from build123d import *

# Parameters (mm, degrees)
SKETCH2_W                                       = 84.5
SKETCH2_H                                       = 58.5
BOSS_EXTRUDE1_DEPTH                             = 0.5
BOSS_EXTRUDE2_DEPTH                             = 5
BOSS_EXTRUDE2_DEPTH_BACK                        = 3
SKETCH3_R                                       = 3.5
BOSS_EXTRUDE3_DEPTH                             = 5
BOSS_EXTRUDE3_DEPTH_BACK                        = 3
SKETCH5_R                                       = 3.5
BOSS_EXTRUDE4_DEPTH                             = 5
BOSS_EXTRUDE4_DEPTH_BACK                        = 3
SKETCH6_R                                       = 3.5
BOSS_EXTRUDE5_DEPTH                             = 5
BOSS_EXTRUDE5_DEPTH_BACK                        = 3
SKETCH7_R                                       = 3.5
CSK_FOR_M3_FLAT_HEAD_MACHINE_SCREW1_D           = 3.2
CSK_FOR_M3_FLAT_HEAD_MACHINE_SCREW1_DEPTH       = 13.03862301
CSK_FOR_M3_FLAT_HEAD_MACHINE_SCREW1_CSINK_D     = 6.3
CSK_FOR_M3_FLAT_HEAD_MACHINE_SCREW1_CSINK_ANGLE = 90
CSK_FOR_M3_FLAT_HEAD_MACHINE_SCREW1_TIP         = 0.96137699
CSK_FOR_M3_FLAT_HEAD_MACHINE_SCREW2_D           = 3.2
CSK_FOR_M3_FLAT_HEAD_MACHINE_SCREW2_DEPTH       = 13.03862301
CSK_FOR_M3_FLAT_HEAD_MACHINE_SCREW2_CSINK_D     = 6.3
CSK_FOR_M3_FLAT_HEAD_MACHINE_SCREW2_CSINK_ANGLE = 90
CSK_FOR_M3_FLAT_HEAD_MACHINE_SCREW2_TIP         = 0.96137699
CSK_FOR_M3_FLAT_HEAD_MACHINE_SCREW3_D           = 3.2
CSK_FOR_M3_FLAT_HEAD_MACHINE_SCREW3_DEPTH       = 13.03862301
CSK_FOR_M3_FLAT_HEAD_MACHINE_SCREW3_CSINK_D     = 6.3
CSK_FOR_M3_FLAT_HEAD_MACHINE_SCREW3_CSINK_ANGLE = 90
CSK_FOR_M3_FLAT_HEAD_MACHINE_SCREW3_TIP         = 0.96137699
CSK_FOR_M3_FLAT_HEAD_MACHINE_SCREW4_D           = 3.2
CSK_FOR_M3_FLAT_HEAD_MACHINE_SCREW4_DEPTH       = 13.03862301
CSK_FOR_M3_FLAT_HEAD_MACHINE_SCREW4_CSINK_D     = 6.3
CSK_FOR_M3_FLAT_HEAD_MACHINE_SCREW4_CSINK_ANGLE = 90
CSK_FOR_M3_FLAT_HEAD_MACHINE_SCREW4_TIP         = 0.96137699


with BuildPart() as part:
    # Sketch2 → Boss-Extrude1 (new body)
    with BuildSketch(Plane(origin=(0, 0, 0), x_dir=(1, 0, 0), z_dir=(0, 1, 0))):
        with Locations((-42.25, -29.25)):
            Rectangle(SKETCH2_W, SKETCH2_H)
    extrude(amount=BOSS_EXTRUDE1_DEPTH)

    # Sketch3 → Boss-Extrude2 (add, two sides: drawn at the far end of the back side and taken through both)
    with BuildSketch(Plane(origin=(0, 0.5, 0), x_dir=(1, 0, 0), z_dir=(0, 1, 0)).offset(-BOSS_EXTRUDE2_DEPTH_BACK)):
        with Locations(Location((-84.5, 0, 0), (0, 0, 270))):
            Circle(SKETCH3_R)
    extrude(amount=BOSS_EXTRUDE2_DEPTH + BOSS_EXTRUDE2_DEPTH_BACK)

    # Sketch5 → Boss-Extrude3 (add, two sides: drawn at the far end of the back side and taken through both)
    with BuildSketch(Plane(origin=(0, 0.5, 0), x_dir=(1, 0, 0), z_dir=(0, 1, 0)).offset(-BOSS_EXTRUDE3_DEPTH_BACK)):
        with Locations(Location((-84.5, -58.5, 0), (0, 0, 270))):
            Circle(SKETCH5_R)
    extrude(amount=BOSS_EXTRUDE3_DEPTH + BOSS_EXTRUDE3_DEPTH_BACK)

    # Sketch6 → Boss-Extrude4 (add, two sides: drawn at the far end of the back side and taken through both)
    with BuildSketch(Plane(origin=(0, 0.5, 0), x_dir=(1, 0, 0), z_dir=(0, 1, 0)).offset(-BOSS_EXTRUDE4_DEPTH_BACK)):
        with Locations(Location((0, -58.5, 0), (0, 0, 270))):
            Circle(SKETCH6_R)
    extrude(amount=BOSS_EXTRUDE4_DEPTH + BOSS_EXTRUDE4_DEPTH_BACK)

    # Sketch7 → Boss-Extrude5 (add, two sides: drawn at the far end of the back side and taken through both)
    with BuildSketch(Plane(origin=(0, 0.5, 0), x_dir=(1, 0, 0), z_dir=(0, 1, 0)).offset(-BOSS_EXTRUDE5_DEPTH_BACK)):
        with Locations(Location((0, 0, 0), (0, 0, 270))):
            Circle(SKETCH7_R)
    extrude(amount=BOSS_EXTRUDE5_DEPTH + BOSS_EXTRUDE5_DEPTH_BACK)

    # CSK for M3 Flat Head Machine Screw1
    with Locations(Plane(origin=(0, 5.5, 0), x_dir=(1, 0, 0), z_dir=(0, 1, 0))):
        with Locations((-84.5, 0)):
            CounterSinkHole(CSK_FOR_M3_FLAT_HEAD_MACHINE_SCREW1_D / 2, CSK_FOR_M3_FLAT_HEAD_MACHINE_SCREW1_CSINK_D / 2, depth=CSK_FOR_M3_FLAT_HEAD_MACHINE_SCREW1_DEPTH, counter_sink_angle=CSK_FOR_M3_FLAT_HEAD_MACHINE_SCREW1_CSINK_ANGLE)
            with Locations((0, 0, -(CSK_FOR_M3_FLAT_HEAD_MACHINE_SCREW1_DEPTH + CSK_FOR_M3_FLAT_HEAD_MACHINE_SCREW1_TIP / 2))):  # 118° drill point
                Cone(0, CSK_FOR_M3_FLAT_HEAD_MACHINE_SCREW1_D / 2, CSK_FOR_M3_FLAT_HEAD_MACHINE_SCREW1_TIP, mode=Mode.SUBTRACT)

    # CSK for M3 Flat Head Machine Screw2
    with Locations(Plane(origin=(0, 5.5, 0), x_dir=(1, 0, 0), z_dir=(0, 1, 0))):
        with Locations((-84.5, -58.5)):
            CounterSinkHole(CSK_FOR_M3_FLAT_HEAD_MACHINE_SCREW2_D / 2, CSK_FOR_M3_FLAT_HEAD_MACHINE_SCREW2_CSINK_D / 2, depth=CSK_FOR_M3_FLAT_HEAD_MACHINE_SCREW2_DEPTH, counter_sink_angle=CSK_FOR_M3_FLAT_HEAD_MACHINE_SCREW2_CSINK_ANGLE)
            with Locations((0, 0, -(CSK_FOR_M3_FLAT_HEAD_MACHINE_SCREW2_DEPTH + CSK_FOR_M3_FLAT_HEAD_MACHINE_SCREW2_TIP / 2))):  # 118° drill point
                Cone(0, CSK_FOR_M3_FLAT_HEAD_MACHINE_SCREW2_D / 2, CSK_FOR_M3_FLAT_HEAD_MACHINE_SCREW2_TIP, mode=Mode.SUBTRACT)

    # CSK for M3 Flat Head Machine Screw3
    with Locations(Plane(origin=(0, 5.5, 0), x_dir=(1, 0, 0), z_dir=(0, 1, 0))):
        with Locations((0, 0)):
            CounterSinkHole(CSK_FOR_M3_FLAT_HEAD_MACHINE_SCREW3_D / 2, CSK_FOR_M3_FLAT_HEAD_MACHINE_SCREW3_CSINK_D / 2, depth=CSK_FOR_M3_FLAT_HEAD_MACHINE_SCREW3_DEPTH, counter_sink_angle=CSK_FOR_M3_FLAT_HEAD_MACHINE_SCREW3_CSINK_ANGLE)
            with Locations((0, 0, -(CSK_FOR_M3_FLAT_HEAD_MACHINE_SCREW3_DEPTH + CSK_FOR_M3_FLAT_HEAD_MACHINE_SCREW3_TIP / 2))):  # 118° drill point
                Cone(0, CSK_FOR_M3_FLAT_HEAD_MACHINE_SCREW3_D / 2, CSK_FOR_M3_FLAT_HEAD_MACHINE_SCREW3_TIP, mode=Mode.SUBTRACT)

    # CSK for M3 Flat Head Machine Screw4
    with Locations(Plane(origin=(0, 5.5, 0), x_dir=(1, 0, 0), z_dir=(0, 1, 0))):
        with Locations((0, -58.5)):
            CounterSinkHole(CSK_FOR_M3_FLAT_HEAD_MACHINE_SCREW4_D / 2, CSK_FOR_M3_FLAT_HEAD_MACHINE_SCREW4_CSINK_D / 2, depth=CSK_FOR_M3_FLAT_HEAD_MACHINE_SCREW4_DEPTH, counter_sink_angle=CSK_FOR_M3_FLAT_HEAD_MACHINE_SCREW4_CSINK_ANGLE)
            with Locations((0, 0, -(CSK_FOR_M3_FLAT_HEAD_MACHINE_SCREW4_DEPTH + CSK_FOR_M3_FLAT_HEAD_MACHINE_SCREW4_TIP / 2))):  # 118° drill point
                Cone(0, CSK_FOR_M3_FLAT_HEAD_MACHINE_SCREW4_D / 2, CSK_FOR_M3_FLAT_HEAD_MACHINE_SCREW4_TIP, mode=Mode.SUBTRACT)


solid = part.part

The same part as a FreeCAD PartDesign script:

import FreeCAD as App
import Part
import Sketcher

V = App.Vector
Q = App.Units.Quantity


def add_polygon(sketch, points):
    """Adds a closed chain of lines whose ends are joined by coincident constraints."""
    first, n = sketch.GeometryCount, len(points)
    for a, b in zip(points, points[1:] + points[:1]):
        sketch.addGeometry(Part.LineSegment(App.Vector(*a, 0), App.Vector(*b, 0)), False)
    for i in range(n):
        sketch.addConstraint(Sketcher.Constraint("Coincident", first + i, 2, first + (i + 1) % n, 1))

doc = App.newDocument("Part")
body = doc.addObject("PartDesign::Body", "Body")

sketch1 = doc.addObject("Sketcher::SketchObject", "Sketch")
body.addObject(sketch1)
sketch1.AttachmentSupport = (doc.XZ_Plane, [""])
sketch1.MapMode = "FlatFace"
add_polygon(sketch1, [(-84, 0), (-84, 58), (0, 58), (0, 0)])
sketch1.addConstraint(Sketcher.Constraint("Vertical", 0))
sketch1.addConstraint(Sketcher.Constraint("Horizontal", 1))
sketch1.addConstraint(Sketcher.Constraint("Vertical", 2))
sketch1.addConstraint(Sketcher.Constraint("Horizontal", 3))
sketch1.addConstraint(Sketcher.Constraint("Coincident", 2, 2, -1, 1))
sketch1.addConstraint(Sketcher.Constraint("DistanceX", 1, 1, 1, 2, Q("84.5 mm")))
sketch1.addConstraint(Sketcher.Constraint("DistanceY", 0, 1, 0, 2, Q("58.5 mm")))
pad1 = doc.addObject("PartDesign::Pad", "Pad")
body.addObject(pad1)
pad1.Profile = sketch1
pad1.Length = 0.5
pad1.Reversed = True

sketch2 = doc.addObject("Sketcher::SketchObject", "Sketch001")
body.addObject(sketch2)
sketch2.AttachmentSupport = (doc.XZ_Plane, [""])
sketch2.MapMode = "FlatFace"
sketch2.AttachmentOffset = App.Placement(V(0, 0, -0.5), App.Rotation())
sketch2.addGeometry(Part.Circle(V(-84.5, 0, 0), V(0, 0, 1), 3.5), False)
sketch2.addConstraint(Sketcher.Constraint("PointOnObject", 0, 3, -1))
sketch2.addConstraint(Sketcher.Constraint("Diameter", 0, Q("7 mm")))
sketch2.addConstraint(Sketcher.Constraint("DistanceX", 0, 3, -1, 1, Q("84.5 mm")))
pad2 = doc.addObject("PartDesign::Pad", "Pad001")
body.addObject(pad2)
pad2.Profile = sketch2
pad2.Type = "TwoLengths"
pad2.Length = 5
pad2.Length2 = 3
pad2.Reversed = True

sketch3 = doc.addObject("Sketcher::SketchObject", "Sketch002")
body.addObject(sketch3)
sketch3.AttachmentSupport = (doc.XZ_Plane, [""])
sketch3.MapMode = "FlatFace"
sketch3.AttachmentOffset = App.Placement(V(0, 0, -0.5), App.Rotation())
sketch3.addGeometry(Part.Circle(V(-84.5, 58.5, 0), V(0, 0, 1), 3.5), False)
sketch3.addConstraint(Sketcher.Constraint("Diameter", 0, Q("7 mm")))
sketch3.addConstraint(Sketcher.Constraint("DistanceX", 0, 3, -1, 1, Q("84.5 mm")))
sketch3.addConstraint(Sketcher.Constraint("DistanceY", -1, 1, 0, 3, Q("58.5 mm")))
pad3 = doc.addObject("PartDesign::Pad", "Pad002")
body.addObject(pad3)
pad3.Profile = sketch3
pad3.Type = "TwoLengths"
pad3.Length = 5
pad3.Length2 = 3
pad3.Reversed = True

sketch4 = doc.addObject("Sketcher::SketchObject", "Sketch003")
body.addObject(sketch4)
sketch4.AttachmentSupport = (doc.XZ_Plane, [""])
sketch4.MapMode = "FlatFace"
sketch4.AttachmentOffset = App.Placement(V(0, 0, -0.5), App.Rotation())
sketch4.addGeometry(Part.Circle(V(0, 58.5, 0), V(0, 0, 1), 3.5), False)
sketch4.addConstraint(Sketcher.Constraint("PointOnObject", 0, 3, -2))
sketch4.addConstraint(Sketcher.Constraint("Diameter", 0, Q("7 mm")))
sketch4.addConstraint(Sketcher.Constraint("DistanceY", -1, 1, 0, 3, Q("58.5 mm")))
pad4 = doc.addObject("PartDesign::Pad", "Pad003")
body.addObject(pad4)
pad4.Profile = sketch4
pad4.Type = "TwoLengths"
pad4.Length = 5
pad4.Length2 = 3
pad4.Reversed = True

sketch5 = doc.addObject("Sketcher::SketchObject", "Sketch004")
body.addObject(sketch5)
sketch5.AttachmentSupport = (doc.XZ_Plane, [""])
sketch5.MapMode = "FlatFace"
sketch5.AttachmentOffset = App.Placement(V(0, 0, -0.5), App.Rotation())
sketch5.addGeometry(Part.Circle(V(0, 0, 0), V(0, 0, 1), 3.5), False)
sketch5.addConstraint(Sketcher.Constraint("Coincident", 0, 3, -1, 1))
sketch5.addConstraint(Sketcher.Constraint("Diameter", 0, Q("7 mm")))
pad5 = doc.addObject("PartDesign::Pad", "Pad004")
body.addObject(pad5)
pad5.Profile = sketch5
pad5.Type = "TwoLengths"
pad5.Length = 5
pad5.Length2 = 3
pad5.Reversed = True

sketch6 = doc.addObject("Sketcher::SketchObject", "Sketch005")
body.addObject(sketch6)
sketch6.AttachmentSupport = (doc.XZ_Plane, [""])
sketch6.MapMode = "FlatFace"
sketch6.AttachmentOffset = App.Placement(V(0, 0, -5.5), App.Rotation())
sketch6.addGeometry(Part.Circle(V(-84.5, 0, 0), V(0, 0, 1), 1.6), False)
sketch6.addConstraint(Sketcher.Constraint("PointOnObject", 0, 3, -1))
sketch6.addConstraint(Sketcher.Constraint("Diameter", 0, Q("3.2 mm")))
sketch6.addConstraint(Sketcher.Constraint("DistanceX", 0, 3, -1, 1, Q("84.5 mm")))
doc.recompute()
hole = doc.addObject("PartDesign::Hole", "Hole")
body.addObject(hole)
hole.Profile = sketch6
hole.ThreadType = "None"
hole.Diameter = 3.2
hole.DepthType = "Dimension"
hole.Depth = 13.038623
hole.DrillPoint = "Angled"
hole.DrillPointAngle = 118
hole.HoleCutType = "Countersink"
hole.HoleCutDiameter = 6.3
hole.HoleCutCountersinkAngle = 90
hole.Reversed = True

sketch7 = doc.addObject("Sketcher::SketchObject", "Sketch006")
body.addObject(sketch7)
sketch7.AttachmentSupport = (doc.XZ_Plane, [""])
sketch7.MapMode = "FlatFace"
sketch7.AttachmentOffset = App.Placement(V(0, 0, -5.5), App.Rotation())
sketch7.addGeometry(Part.Circle(V(-84.5, 58.5, 0), V(0, 0, 1), 1.6), False)
sketch7.addConstraint(Sketcher.Constraint("Diameter", 0, Q("3.2 mm")))
sketch7.addConstraint(Sketcher.Constraint("DistanceX", 0, 3, -1, 1, Q("84.5 mm")))
sketch7.addConstraint(Sketcher.Constraint("DistanceY", -1, 1, 0, 3, Q("58.5 mm")))
doc.recompute()
hole2 = doc.addObject("PartDesign::Hole", "Hole001")
body.addObject(hole2)
hole2.Profile = sketch7
hole2.ThreadType = "None"
hole2.Diameter = 3.2
hole2.DepthType = "Dimension"
hole2.Depth = 13.038623
hole2.DrillPoint = "Angled"
hole2.DrillPointAngle = 118
hole2.HoleCutType = "Countersink"
hole2.HoleCutDiameter = 6.3
hole2.HoleCutCountersinkAngle = 90
hole2.Reversed = True

sketch8 = doc.addObject("Sketcher::SketchObject", "Sketch007")
body.addObject(sketch8)
sketch8.AttachmentSupport = (doc.XZ_Plane, [""])
sketch8.MapMode = "FlatFace"
sketch8.AttachmentOffset = App.Placement(V(0, 0, -5.5), App.Rotation())
sketch8.addGeometry(Part.Circle(V(0, 0, 0), V(0, 0, 1), 1.6), False)
sketch8.addConstraint(Sketcher.Constraint("Coincident", 0, 3, -1, 1))
sketch8.addConstraint(Sketcher.Constraint("Diameter", 0, Q("3.2 mm")))
doc.recompute()
hole3 = doc.addObject("PartDesign::Hole", "Hole002")
body.addObject(hole3)
hole3.Profile = sketch8
hole3.ThreadType = "None"
hole3.Diameter = 3.2
hole3.DepthType = "Dimension"
hole3.Depth = 13.038623
hole3.DrillPoint = "Angled"
hole3.DrillPointAngle = 118
hole3.HoleCutType = "Countersink"
hole3.HoleCutDiameter = 6.3
hole3.HoleCutCountersinkAngle = 90
hole3.Reversed = True

sketch9 = doc.addObject("Sketcher::SketchObject", "Sketch008")
body.addObject(sketch9)
sketch9.AttachmentSupport = (doc.XZ_Plane, [""])
sketch9.MapMode = "FlatFace"
sketch9.AttachmentOffset = App.Placement(V(0, 0, -5.5), App.Rotation())
sketch9.addGeometry(Part.Circle(V(0, 58.5, 0), V(0, 0, 1), 1.6), False)
sketch9.addConstraint(Sketcher.Constraint("PointOnObject", 0, 3, -2))
sketch9.addConstraint(Sketcher.Constraint("Diameter", 0, Q("3.2 mm")))
sketch9.addConstraint(Sketcher.Constraint("DistanceY", -1, 1, 0, 3, Q("58.5 mm")))
doc.recompute()
hole4 = doc.addObject("PartDesign::Hole", "Hole003")
body.addObject(hole4)
hole4.Profile = sketch9
hole4.ThreadType = "None"
hole4.Diameter = 3.2
hole4.DepthType = "Dimension"
hole4.Depth = 13.038623
hole4.DrillPoint = "Angled"
hole4.DrillPointAngle = 118
hole4.HoleCutType = "Countersink"
hole4.HoleCutDiameter = 6.3
hole4.HoleCutCountersinkAngle = 90
hole4.Reversed = True

doc.recompute()
